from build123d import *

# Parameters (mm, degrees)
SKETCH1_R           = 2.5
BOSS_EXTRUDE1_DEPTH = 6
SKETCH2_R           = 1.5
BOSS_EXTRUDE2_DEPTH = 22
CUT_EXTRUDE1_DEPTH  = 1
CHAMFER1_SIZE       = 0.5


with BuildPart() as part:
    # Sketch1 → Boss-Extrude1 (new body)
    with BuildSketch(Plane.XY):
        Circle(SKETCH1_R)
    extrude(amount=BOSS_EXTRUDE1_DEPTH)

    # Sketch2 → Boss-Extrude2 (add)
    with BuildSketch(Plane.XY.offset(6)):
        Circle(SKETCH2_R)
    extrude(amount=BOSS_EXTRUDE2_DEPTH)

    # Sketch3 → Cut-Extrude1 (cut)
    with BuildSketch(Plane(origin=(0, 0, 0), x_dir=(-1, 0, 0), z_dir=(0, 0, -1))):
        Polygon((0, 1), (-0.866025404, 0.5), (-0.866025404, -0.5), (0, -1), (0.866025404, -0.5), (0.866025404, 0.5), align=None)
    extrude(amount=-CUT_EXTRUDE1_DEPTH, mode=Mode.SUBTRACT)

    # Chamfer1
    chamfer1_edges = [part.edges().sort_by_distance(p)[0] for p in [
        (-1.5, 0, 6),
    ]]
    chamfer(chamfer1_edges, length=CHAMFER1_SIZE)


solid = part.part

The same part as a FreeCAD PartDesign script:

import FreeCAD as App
import Part
import Sketcher
Q = App.Units.Quantity


def edges_at(feature, points):
    """Names of the edges that pass closest to the given points."""
    edges = feature.Shape.Edges
    near = lambda p: min(range(len(edges)), key=lambda i: edges[i].distToShape(Part.Vertex(*p))[0])
    return sorted({f"Edge{near(p) + 1}" for p in points})

doc = App.newDocument("Part")
params = doc.addObject("Spreadsheet::Sheet", "Params")
for row, (alias, value) in enumerate([
    ("sketch1_diameter", "5 mm"),
    ("pad1_length", "6 mm"),
    ("sketch2_diameter", "3 mm"),
    ("pad2_length", "22 mm"),
    ("sketch3_height", "1 mm"),
    ("sketch3_length", "1 mm"),
    ("pocket1_length", "1 mm"),
    ("chamfer_size", "0.5 mm"),
], start=1):
    params.set(f"A{row}", alias)
    params.set(f"B{row}", "=" + value)
    params.setAlias(f"B{row}", alias)

body = doc.addObject("PartDesign::Body", "Body")

# Sketch on XY plane
sketch1 = body.newObject("Sketcher::SketchObject", "Sketch")
sketch1.AttachmentSupport = (doc.getObject("XY_Plane"), [""])
sketch1.MapMode = "FlatFace"
sketch1.addGeometry(Part.Circle(App.Vector(0, 0, 0), App.Vector(0, 0, 1), 2.5), False)
sketch1.addConstraint([
    Sketcher.Constraint("Coincident", 0, 3, -1, 1),
    Sketcher.Constraint("Diameter", 0, 5.0),
])
sketch1.setExpression("Constraints[1]", "Params.sketch1_diameter")
pad1 = body.newObject("PartDesign::Pad", "Pad")
pad1.Profile = sketch1
pad1.setExpression("Length", "Params.pad1_length")

# Sketch on XY plane
sketch2 = body.newObject("Sketcher::SketchObject", "Sketch001")
sketch2.AttachmentSupport = (doc.getObject("XY_Plane"), [""])
sketch2.MapMode = "FlatFace"
sketch2.AttachmentOffset = App.Placement(App.Vector(0, 0, 6), App.Rotation())
sketch2.addGeometry(Part.Circle(App.Vector(0, 0, 0), App.Vector(0, 0, 1), 1.5), False)
sketch2.addConstraint([
    Sketcher.Constraint("Coincident", 0, 3, -1, 1),
    Sketcher.Constraint("Diameter", 0, 3.0),
])
sketch2.setExpression("Constraints[1]", "Params.sketch2_diameter")
pad2 = body.newObject("PartDesign::Pad", "Pad001")
pad2.Profile = sketch2
pad2.setExpression("Length", "Params.pad2_length")

# Sketch on XY plane
sketch3 = body.newObject("Sketcher::SketchObject", "Sketch002")
sketch3.AttachmentSupport = (doc.getObject("XY_Plane"), [""])
sketch3.MapMode = "FlatFace"
sketch3.addGeometry([
    Part.LineSegment(App.Vector(0, 1, 0), App.Vector(0.9, 0.5, 0)),  # 0
    Part.LineSegment(App.Vector(0.9, 0.5, 0), App.Vector(0.9, -0.5, 0)),  # 1
    Part.LineSegment(App.Vector(0.9, -0.5, 0), App.Vector(0, -1, 0)),  # 2
    Part.LineSegment(App.Vector(0, -1, 0), App.Vector(-0.9, -0.5, 0)),  # 3
    Part.LineSegment(App.Vector(-0.9, -0.5, 0), App.Vector(-0.9, 0.5, 0)),  # 4
    Part.LineSegment(App.Vector(-0.9, 0.5, 0), App.Vector(0, 1, 0)),  # 5
], False)
sketch3.addConstraint([
    Sketcher.Constraint("Coincident", 0, 2, 1, 1),
    Sketcher.Constraint("Coincident", 1, 2, 2, 1),
    Sketcher.Constraint("Coincident", 2, 2, 3, 1),
    Sketcher.Constraint("Coincident", 3, 2, 4, 1),
    Sketcher.Constraint("Coincident", 4, 2, 5, 1),
    Sketcher.Constraint("Coincident", 5, 2, 0, 1),
    Sketcher.Constraint("Vertical", 1),
    Sketcher.Constraint("Vertical", 4),
    Sketcher.Constraint("Symmetric", 0, 2, 3, 2, -1, 1),
    Sketcher.Constraint("Symmetric", 2, 2, 5, 2, -1, 1),
    Sketcher.Constraint("PointOnObject", 2, 2, -2),
    Sketcher.Constraint("Parallel", 2, 5),
    Sketcher.Constraint("Horizontal", 1, 2, 3, 2),
    Sketcher.Constraint("DistanceY", 1, 2, 1, 1, 1.0),
    Sketcher.Constraint("Angle", 0, Q("-30 deg")),
    Sketcher.Constraint("Distance", 0, 1.0),
])
sketch3.setExpression("Constraints[13]", "Params.sketch3_height")
sketch3.setExpression("Constraints[15]", "Params.sketch3_length")
pocket1 = body.newObject("PartDesign::Pocket", "Pocket")
pocket1.Profile = sketch3
pocket1.setExpression("Length", "Params.pocket1_length")
pocket1.Reversed = True
doc.recompute()

chamfer = body.newObject("PartDesign::Chamfer", "Chamfer")
chamfer.Base = (pocket1, edges_at(pocket1, [(-1.5, 0, 6)]))
chamfer.setExpression("Size", "Params.chamfer_size")

doc.recompute()
